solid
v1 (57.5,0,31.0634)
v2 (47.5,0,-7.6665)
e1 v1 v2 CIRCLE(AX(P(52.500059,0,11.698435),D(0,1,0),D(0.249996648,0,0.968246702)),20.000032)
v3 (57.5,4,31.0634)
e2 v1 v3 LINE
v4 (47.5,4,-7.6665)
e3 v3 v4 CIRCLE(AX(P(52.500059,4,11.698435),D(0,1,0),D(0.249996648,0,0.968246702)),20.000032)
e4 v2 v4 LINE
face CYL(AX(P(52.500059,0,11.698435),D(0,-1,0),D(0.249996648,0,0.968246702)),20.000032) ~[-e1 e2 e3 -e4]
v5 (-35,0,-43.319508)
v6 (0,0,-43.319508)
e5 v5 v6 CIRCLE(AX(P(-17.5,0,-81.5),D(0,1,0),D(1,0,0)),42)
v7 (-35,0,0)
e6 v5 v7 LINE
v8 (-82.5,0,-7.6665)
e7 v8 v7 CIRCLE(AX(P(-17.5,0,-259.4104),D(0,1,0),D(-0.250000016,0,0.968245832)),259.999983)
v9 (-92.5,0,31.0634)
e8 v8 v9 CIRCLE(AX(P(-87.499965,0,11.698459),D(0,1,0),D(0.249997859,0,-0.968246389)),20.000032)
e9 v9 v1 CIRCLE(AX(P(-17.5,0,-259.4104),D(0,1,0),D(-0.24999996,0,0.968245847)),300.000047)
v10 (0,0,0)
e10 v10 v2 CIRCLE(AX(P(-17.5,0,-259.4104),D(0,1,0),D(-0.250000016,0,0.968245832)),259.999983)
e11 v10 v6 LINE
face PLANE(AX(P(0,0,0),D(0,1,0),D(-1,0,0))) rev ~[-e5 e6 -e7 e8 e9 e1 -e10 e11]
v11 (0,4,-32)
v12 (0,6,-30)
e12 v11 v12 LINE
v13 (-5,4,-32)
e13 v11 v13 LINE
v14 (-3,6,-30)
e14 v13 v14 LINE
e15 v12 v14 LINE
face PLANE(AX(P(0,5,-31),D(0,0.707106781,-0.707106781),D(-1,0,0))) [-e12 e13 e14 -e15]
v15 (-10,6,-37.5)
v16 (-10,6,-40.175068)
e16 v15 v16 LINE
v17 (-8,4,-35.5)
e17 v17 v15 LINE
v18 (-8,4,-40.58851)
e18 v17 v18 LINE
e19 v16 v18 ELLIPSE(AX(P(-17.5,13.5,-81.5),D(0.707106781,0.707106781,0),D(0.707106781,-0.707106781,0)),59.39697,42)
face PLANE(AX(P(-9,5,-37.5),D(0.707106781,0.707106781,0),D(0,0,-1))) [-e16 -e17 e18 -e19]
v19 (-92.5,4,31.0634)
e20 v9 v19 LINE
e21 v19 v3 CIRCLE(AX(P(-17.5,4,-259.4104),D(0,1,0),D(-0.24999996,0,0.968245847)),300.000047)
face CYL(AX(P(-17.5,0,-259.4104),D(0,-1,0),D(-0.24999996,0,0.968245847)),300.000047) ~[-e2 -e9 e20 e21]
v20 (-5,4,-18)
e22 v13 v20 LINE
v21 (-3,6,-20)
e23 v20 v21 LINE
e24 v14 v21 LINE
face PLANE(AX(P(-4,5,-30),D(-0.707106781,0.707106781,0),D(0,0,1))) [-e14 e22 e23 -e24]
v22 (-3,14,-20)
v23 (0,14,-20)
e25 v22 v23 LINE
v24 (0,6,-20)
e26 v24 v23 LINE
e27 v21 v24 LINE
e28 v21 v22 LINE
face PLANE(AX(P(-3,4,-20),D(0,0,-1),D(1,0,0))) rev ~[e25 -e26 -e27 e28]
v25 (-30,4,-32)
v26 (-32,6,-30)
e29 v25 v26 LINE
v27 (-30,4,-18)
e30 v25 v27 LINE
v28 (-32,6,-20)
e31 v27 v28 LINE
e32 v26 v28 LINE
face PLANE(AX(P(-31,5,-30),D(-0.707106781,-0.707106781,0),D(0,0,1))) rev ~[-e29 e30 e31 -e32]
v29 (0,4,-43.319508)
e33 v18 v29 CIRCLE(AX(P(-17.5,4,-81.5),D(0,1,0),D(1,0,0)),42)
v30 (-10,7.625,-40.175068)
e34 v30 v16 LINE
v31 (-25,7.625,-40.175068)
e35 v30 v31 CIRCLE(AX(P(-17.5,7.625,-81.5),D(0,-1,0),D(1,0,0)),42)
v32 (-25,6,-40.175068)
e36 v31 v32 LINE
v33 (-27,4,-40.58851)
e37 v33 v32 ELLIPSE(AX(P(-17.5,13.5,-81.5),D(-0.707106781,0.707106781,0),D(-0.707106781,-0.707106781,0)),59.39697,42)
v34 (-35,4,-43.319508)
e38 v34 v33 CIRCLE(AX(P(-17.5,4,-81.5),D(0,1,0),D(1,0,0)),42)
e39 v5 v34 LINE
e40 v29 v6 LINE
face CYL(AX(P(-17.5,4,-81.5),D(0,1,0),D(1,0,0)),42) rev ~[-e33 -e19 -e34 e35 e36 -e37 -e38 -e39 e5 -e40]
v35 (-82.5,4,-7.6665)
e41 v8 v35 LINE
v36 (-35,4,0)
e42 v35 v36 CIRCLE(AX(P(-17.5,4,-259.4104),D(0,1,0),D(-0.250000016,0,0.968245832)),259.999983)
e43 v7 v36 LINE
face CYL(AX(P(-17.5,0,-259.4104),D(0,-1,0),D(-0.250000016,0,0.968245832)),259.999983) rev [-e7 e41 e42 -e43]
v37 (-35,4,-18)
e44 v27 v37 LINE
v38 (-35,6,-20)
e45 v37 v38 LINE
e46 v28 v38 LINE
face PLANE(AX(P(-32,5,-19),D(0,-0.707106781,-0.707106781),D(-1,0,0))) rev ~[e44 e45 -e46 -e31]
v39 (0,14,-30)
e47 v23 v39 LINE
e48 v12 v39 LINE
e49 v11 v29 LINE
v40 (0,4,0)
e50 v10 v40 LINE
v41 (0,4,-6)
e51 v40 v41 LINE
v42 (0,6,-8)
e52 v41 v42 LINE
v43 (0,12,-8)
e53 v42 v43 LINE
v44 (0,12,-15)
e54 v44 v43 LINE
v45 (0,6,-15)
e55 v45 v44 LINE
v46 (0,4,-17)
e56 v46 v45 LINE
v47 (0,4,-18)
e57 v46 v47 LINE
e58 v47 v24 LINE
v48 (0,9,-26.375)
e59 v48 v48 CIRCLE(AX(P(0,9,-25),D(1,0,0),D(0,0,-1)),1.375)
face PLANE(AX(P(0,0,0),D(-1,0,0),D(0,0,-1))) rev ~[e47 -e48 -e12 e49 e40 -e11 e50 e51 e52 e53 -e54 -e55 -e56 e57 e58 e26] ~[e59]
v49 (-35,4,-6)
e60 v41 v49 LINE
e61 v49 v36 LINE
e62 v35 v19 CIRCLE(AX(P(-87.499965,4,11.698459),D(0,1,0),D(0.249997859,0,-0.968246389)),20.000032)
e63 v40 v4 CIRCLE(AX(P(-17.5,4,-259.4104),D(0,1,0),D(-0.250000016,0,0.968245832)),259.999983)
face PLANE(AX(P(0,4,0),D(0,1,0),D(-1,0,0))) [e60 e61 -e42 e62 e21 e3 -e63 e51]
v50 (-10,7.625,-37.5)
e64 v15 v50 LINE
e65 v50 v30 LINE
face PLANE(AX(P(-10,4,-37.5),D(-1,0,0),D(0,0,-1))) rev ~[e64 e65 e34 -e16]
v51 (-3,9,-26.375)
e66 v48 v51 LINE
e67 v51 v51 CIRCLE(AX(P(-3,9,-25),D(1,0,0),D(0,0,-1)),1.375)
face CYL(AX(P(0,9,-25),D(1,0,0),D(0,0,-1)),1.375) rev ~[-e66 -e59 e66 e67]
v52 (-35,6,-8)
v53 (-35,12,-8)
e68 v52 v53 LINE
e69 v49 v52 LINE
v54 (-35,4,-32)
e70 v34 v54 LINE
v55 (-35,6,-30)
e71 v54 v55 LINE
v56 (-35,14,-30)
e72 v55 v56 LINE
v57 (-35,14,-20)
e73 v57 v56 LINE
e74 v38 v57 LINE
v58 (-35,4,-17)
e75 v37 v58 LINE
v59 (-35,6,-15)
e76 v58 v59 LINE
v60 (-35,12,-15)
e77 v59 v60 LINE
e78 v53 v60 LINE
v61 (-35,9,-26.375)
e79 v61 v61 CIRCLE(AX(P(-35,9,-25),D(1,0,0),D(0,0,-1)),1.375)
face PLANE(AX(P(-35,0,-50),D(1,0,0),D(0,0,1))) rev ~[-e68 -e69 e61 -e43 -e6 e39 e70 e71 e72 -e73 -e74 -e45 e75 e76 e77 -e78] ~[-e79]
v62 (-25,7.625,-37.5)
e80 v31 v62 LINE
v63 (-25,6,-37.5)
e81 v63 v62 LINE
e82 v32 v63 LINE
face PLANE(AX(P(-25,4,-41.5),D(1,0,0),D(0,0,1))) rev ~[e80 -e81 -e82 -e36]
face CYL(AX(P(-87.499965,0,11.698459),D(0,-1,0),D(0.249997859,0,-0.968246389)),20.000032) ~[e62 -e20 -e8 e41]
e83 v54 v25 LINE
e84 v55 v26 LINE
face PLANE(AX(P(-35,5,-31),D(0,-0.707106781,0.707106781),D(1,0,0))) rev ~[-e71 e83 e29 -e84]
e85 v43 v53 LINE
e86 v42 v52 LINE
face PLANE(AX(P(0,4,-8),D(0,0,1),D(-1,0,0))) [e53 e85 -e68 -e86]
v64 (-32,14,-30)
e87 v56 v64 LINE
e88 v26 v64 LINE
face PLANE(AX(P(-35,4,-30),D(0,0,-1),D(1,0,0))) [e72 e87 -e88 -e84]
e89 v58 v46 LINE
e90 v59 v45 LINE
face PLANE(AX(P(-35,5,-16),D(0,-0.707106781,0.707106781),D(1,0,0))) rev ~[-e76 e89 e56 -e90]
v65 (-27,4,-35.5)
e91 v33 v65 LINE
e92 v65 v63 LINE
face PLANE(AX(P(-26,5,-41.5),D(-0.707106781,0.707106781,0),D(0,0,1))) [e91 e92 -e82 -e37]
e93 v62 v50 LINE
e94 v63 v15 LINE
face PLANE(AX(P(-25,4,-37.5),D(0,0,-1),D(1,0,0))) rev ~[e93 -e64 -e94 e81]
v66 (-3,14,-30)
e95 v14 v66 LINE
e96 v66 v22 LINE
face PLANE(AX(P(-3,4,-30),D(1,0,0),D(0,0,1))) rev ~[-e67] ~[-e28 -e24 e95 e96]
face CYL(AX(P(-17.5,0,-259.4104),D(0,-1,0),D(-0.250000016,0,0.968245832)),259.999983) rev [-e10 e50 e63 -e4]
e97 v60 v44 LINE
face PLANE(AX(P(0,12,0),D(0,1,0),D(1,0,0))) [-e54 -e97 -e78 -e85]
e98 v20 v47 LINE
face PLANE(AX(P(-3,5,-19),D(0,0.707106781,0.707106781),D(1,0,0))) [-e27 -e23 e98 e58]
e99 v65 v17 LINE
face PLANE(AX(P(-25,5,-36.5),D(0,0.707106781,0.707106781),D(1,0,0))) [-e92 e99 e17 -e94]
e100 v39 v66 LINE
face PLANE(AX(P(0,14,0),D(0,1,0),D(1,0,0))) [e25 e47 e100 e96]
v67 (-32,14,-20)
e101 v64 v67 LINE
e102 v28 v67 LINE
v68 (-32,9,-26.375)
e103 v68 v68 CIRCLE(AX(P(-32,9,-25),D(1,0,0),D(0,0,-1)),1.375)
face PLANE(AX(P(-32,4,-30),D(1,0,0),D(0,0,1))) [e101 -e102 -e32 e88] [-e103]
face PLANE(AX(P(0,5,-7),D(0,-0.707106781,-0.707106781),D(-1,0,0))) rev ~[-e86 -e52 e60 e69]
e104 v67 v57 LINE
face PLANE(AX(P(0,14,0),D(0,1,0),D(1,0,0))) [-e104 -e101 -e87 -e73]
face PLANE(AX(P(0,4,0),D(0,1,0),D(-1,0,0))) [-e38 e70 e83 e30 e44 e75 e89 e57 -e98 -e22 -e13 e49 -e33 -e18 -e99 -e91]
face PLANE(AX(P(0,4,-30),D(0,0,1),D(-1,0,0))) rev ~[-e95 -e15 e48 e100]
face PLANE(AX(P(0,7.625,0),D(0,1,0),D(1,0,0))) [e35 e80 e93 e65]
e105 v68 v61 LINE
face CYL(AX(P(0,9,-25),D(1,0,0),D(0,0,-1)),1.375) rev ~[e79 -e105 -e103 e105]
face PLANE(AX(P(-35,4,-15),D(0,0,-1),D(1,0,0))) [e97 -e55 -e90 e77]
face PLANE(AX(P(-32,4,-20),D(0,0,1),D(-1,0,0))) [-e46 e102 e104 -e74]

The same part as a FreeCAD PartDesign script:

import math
import FreeCAD as App
import Part
import Sketcher

V = App.Vector
Q = App.Units.Quantity


def edges_at(feature, points):
    """Names of the edges that pass closest to the given points."""
    edges = feature.Shape.Edges
    near = lambda p: min(range(len(edges)), key=lambda i: edges[i].distToShape(Part.Vertex(*p))[0])
    return sorted({f"Edge{near(p) + 1}" for p in points})

doc = App.newDocument("Part")
body = doc.addObject("PartDesign::Body", "Body")

sketch1 = body.newObject("Sketcher::SketchObject", "Sketch")
sketch1.AttachmentSupport = (doc.getObject("XZ_Plane"), [""])
sketch1.MapMode = "FlatFace"
sketch1.addGeometry([
    Part.ArcOfCircle(Part.Circle(V(-87.5, 11.6984, 0), V(0, 0, 1), 19.999984), math.radians(104.477453), math.radians(284.477524)),
    Part.ArcOfCircle(Part.Circle(V(-17.5, -259.4104, 0), V(0, 0, 1), 300.000047), math.radians(75.52249), math.radians(104.47751)),
    Part.ArcOfCircle(Part.Circle(V(52.5, 11.6984, 0), V(0, 0, 1), 20.000081), math.radians(-104.477524), math.radians(75.522547)),
    Part.ArcOfCircle(Part.Circle(V(-17.5, -259.4104, 0), V(0, 0, 1), 259.999983), math.radians(75.522487), math.radians(86.140636)),
    Part.LineSegment(V(0, 0, 0), V(0, -50, 0)),
    Part.LineSegment(V(0, -50, 0), V(-35, -50, 0)),
    Part.LineSegment(V(-35, -50, 0), V(-35, 0, 0)),
    Part.ArcOfCircle(Part.Circle(V(-17.5, -259.4104, 0), V(0, 0, 1), 259.999983), math.radians(93.859364), math.radians(104.477513)),
], False)
sketch1.addConstraint([
    Sketcher.Constraint("Tangent", 0, 1, 1, 2),
    Sketcher.Constraint("Tangent", 1, 1, 2, 2),
    Sketcher.Constraint("Tangent", 2, 1, 3, 1),
    Sketcher.Constraint("Coincident", 3, 2, 4, 1),
    Sketcher.Constraint("Coincident", 4, 2, 5, 1),
    Sketcher.Constraint("Coincident", 5, 2, 6, 1),
    Sketcher.Constraint("Coincident", 6, 2, 7, 1),
    Sketcher.Constraint("Tangent", 7, 2, 0, 2),
    Sketcher.Constraint("Vertical", 4),
    Sketcher.Constraint("Horizontal", 5),
    Sketcher.Constraint("Vertical", 6),
    Sketcher.Constraint("Coincident", 3, 2, -1, 1),
    Sketcher.Constraint("Coincident", 3, 3, 1, 3),
    Sketcher.Constraint("Coincident", 7, 3, 1, 3),
    Sketcher.Constraint("Equal", 0, 2),
    Sketcher.Constraint("PointOnObject", 6, 2, -1),
    Sketcher.Constraint("Horizontal", 0, 3, 2, 3),
    Sketcher.Constraint("Radius", 0, Q("20 mm")),
    Sketcher.Constraint("Radius", 1, Q("300 mm")),
    Sketcher.Constraint("DistanceX", 5, 2, 5, 1, Q("35 mm")),
    Sketcher.Constraint("DistanceY", 4, 2, 4, 1, Q("50 mm")),
    Sketcher.Constraint("DistanceX", 0, 3, 2, 3, Q("140 mm")),
])
pad1 = body.newObject("PartDesign::Pad", "Pad")
pad1.Profile = sketch1
pad1.Length = 4
pad1.Reversed = True

sketch2 = body.newObject("Sketcher::SketchObject", "Sketch001")
sketch2.AttachmentSupport = (doc.getObject("XZ_Plane"), [""])
sketch2.MapMode = "FlatFace"
sketch2.AttachmentOffset = App.Placement(V(0, 0, -4), App.Rotation())
sketch2.addGeometry([
    Part.LineSegment(V(0, -20, 0), V(0, -30, 0)),
    Part.LineSegment(V(0, -30, 0), V(-3, -30, 0)),
    Part.LineSegment(V(-3, -30, 0), V(-3, -20, 0)),
    Part.LineSegment(V(-3, -20, 0), V(0, -20, 0)),
    Part.LineSegment(V(-32, -30, 0), V(-35, -30, 0)),
    Part.LineSegment(V(-35, -30, 0), V(-35, -20, 0)),
    Part.LineSegment(V(-35, -20, 0), V(-32, -20, 0)),
    Part.LineSegment(V(-32, -20, 0), V(-32, -30, 0)),
], False)
sketch2.addConstraint([
    Sketcher.Constraint("Coincident", 0, 2, 1, 1),
    Sketcher.Constraint("Coincident", 1, 2, 2, 1),
    Sketcher.Constraint("Coincident", 2, 2, 3, 1),
    Sketcher.Constraint("Coincident", 3, 2, 0, 1),
    Sketcher.Constraint("Coincident", 4, 2, 5, 1),
    Sketcher.Constraint("Coincident", 5, 2, 6, 1),
    Sketcher.Constraint("Coincident", 6, 2, 7, 1),
    Sketcher.Constraint("Coincident", 7, 2, 4, 1),
    Sketcher.Constraint("Vertical", 0),
    Sketcher.Constraint("Horizontal", 1),
    Sketcher.Constraint("Vertical", 2),
    Sketcher.Constraint("Horizontal", 3),
    Sketcher.Constraint("Horizontal", 4),
    Sketcher.Constraint("Vertical", 5),
    Sketcher.Constraint("Horizontal", 6),
    Sketcher.Constraint("Vertical", 7),
    Sketcher.Constraint("PointOnObject", 0, 2, -2),
    Sketcher.Constraint("Horizontal", 1, 2, 4, 2),
    Sketcher.Constraint("Horizontal", 3, 2, 5, 2),
    Sketcher.Constraint("Equal", 3, 4),
    Sketcher.Constraint("DistanceX", 1, 2, 1, 1, Q("3 mm")),
    Sketcher.Constraint("DistanceY", 0, 2, 0, 1, Q("10 mm")),
    Sketcher.Constraint("DistanceY", 0, 2, -1, 1, Q("30 mm")),
    Sketcher.Constraint("DistanceX", 4, 2, -1, 1, Q("35 mm")),
])
pad2 = body.newObject("PartDesign::Pad", "Pad001")
pad2.Profile = sketch2
pad2.Length = 10
pad2.Reversed = True

sketch3 = body.newObject("Sketcher::SketchObject", "Sketch002")
sketch3.AttachmentSupport = (doc.getObject("XZ_Plane"), [""])
sketch3.MapMode = "FlatFace"
sketch3.AttachmentOffset = App.Placement(V(0, 0, -4), App.Rotation())
sketch3.addGeometry([
    Part.LineSegment(V(0, -15, 0), V(-35, -15, 0)),
    Part.LineSegment(V(-35, -15, 0), V(-35, -8, 0)),
    Part.LineSegment(V(-35, -8, 0), V(0, -8, 0)),
    Part.LineSegment(V(0, -8, 0), V(0, -15, 0)),
], False)
sketch3.addConstraint([
    Sketcher.Constraint("Coincident", 0, 2, 1, 1),
    Sketcher.Constraint("Coincident", 1, 2, 2, 1),
    Sketcher.Constraint("Coincident", 2, 2, 3, 1),
    Sketcher.Constraint("Coincident", 3, 2, 0, 1),
    Sketcher.Constraint("Horizontal", 0),
    Sketcher.Constraint("Vertical", 1),
    Sketcher.Constraint("Horizontal", 2),
    Sketcher.Constraint("Vertical", 3),
    Sketcher.Constraint("PointOnObject", 2, 2, -2),
    Sketcher.Constraint("DistanceY", 1, 1, 1, 2, Q("7 mm")),
    Sketcher.Constraint("DistanceX", 0, 2, 0, 1, Q("35 mm")),
    Sketcher.Constraint("DistanceY", 0, 2, -1, 1, Q("15 mm")),
])
pad3 = body.newObject("PartDesign::Pad", "Pad002")
pad3.Profile = sketch3
pad3.Length = 8
pad3.Reversed = True

sketch4 = body.newObject("Sketcher::SketchObject", "Sketch003")
sketch4.AttachmentSupport = (doc.getObject("YZ_Plane"), [""])
sketch4.MapMode = "FlatFace"
sketch4.addGeometry(Part.Circle(V(9, -25, 0), V(0, 0, 1), 1.375), False)
sketch4.addConstraint([
    Sketcher.Constraint("Diameter", 0, Q("2.75 mm")),
    Sketcher.Constraint("DistanceX", -1, 1, 0, 3, Q("9 mm")),
    Sketcher.Constraint("DistanceY", 0, 3, -1, 1, Q("25 mm")),
])
pocket1 = body.newObject("PartDesign::Pocket", "Pocket")
pocket1.Profile = sketch4
pocket1.Type = "ThroughAll"

sketch5 = body.newObject("Sketcher::SketchObject", "Sketch004")
sketch5.AttachmentSupport = (doc.getObject("XZ_Plane"), [""])
sketch5.MapMode = "FlatFace"
sketch5.AttachmentOffset = App.Placement(V(0, 0, -4), App.Rotation())
sketch5.addGeometry([
    Part.LineSegment(V(-25, -41.5, 0), V(-25, -37.5, 0)),
    Part.LineSegment(V(-25, -37.5, 0), V(-10, -37.5, 0)),
    Part.LineSegment(V(-10, -37.5, 0), V(-10, -41.5, 0)),
    Part.LineSegment(V(-10, -41.5, 0), V(-25, -41.5, 0)),
], False)
sketch5.addConstraint([
    Sketcher.Constraint("Coincident", 0, 2, 1, 1),
    Sketcher.Constraint("Coincident", 1, 2, 2, 1),
    Sketcher.Constraint("Coincident", 2, 2, 3, 1),
    Sketcher.Constraint("Coincident", 3, 2, 0, 1),
    Sketcher.Constraint("Vertical", 0),
    Sketcher.Constraint("Horizontal", 1),
    Sketcher.Constraint("Vertical", 2),
    Sketcher.Constraint("Horizontal", 3),
    Sketcher.Constraint("DistanceX", 1, 1, 1, 2, Q("15 mm")),
    Sketcher.Constraint("DistanceY", 0, 1, 0, 2, Q("4 mm")),
    Sketcher.Constraint("DistanceX", 1, 2, -1, 1, Q("10 mm")),
    Sketcher.Constraint("DistanceY", 0, 2, -1, 1, Q("37.5 mm")),
])
pad4 = body.newObject("PartDesign::Pad", "Pad003")
pad4.Profile = sketch5
pad4.Length = 3.625
pad4.Reversed = True
doc.recompute()

chamfer = body.newObject("PartDesign::Chamfer", "Chamfer")
chamfer.Base = (pad4, edges_at(pad4, [
    (-17.5, 4, -15),
    (-32, 4, -25),
    (-33.5, 4, -30),
    (-33.5, 4, -20),
    (-17.5, 4, -8),
    (-3, 4, -25),
    (-1.5, 4, -30),
    (-1.5, 4, -20),
    (-10, 4, -39.5),
    (-17.5, 4, -41.5),
    (-17.5, 4, -37.5),
    (-25, 4, -39.5),
]))
chamfer.Size = 2

sketch6 = body.newObject("Sketcher::SketchObject", "Sketch005")
sketch6.AttachmentSupport = (doc.getObject("XZ_Plane"), [""])
sketch6.MapMode = "FlatFace"
sketch6.AttachmentOffset = App.Placement(V(0, 0, -4), App.Rotation())
sketch6.addGeometry(Part.Circle(V(-17.5, -81.5, 0), V(0, 0, 1), 42), False)
sketch6.addConstraint([
    Sketcher.Constraint("Diameter", 0, Q("84 mm")),
    Sketcher.Constraint("DistanceX", 0, 3, -1, 1, Q("17.5 mm")),
    Sketcher.Constraint("DistanceY", 0, 3, -1, 1, Q("81.5 mm")),
])
pocket2 = body.newObject("PartDesign::Pocket", "Pocket001")
pocket2.Profile = sketch6
pocket2.Type = "ThroughAll"
pocket2.Midplane = True

doc.recompute()
